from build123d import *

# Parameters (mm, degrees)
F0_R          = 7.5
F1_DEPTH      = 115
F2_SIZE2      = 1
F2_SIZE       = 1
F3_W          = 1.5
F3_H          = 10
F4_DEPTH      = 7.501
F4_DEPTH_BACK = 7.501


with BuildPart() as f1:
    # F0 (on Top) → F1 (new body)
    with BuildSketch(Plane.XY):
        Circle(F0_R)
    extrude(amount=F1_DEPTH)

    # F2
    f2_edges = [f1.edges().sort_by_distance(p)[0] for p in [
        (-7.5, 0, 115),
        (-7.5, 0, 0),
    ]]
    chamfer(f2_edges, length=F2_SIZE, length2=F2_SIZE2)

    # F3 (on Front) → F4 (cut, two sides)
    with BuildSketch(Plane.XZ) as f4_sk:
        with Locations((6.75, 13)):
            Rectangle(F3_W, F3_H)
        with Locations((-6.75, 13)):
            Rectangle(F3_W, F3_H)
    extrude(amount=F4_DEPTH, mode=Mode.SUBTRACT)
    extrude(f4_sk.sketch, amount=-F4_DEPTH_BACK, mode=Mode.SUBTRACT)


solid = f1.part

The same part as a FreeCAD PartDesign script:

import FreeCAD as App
import Part
import Sketcher


def edges_at(feature, points):
    """Names of the edges that pass closest to the given points."""
    edges = feature.Shape.Edges
    near = lambda p: min(range(len(edges)), key=lambda i: edges[i].distToShape(Part.Vertex(*p))[0])
    return sorted({f"Edge{near(p) + 1}" for p in points})


def add_polygon(sketch, points):
    """Adds a closed chain of lines whose ends are joined by coincident constraints."""
    first, n = sketch.GeometryCount, len(points)
    for a, b in zip(points, points[1:] + points[:1]):
        sketch.addGeometry(Part.LineSegment(App.Vector(*a, 0), App.Vector(*b, 0)), False)
    for i in range(n):
        sketch.addConstraint(Sketcher.Constraint("Coincident", first + i, 2, first + (i + 1) % n, 1))

doc = App.newDocument("Part")
body = doc.addObject("PartDesign::Body", "Body")

sketch1 = body.newObject("Sketcher::SketchObject", "Sketch")
sketch1.AttachmentSupport = (doc.getObject("XY_Plane"), [""])
sketch1.MapMode = "FlatFace"
sketch1.addGeometry(Part.Circle(App.Vector(0, 0, 0), App.Vector(0, 0, 1), 7.5), False)
sketch1.addConstraint(Sketcher.Constraint("Coincident", 0, 3, -1, 1))
sketch1.addConstraint(Sketcher.Constraint("Diameter", 0, 15.0))
pad1 = body.newObject("PartDesign::Pad", "Pad")
pad1.Profile = sketch1
pad1.Length = 115
doc.recompute()

chamfer = body.newObject("PartDesign::Chamfer", "Chamfer")
chamfer.Base = (pad1, edges_at(pad1, [(-7.5, 0, 115), (-7.5, 0, 0)]))
chamfer.ChamferType = "Two distances"
chamfer.Size = 1
chamfer.Size2 = 1

sketch2 = body.newObject("Sketcher::SketchObject", "Sketch001")
sketch2.AttachmentSupport = (doc.getObject("XZ_Plane"), [""])
sketch2.MapMode = "FlatFace"
add_polygon(sketch2, [(6, 18), (6, 8), (7.5, 8), (7.5, 18)])
add_polygon(sketch2, [(-7.5, 18), (-7.5, 8), (-6, 8), (-6, 18)])
sketch2.addConstraint(Sketcher.Constraint("Vertical", 0))
sketch2.addConstraint(Sketcher.Constraint("Horizontal", 1))
sketch2.addConstraint(Sketcher.Constraint("Vertical", 2))
sketch2.addConstraint(Sketcher.Constraint("Horizontal", 3))
sketch2.addConstraint(Sketcher.Constraint("Vertical", 4))
sketch2.addConstraint(Sketcher.Constraint("Horizontal", 5))
sketch2.addConstraint(Sketcher.Constraint("Vertical", 6))
sketch2.addConstraint(Sketcher.Constraint("Horizontal", 7))
sketch2.addConstraint(Sketcher.Constraint("Symmetric", 1, 2, 4, 2, -2))
sketch2.addConstraint(Sketcher.Constraint("Symmetric", 3, 2, 6, 2, -2))
sketch2.addConstraint(Sketcher.Constraint("DistanceY", 0, 2, 0, 1, 10.0))
sketch2.addConstraint(Sketcher.Constraint("DistanceX", 1, 1, 1, 2, 1.5))
sketch2.addConstraint(Sketcher.Constraint("DistanceX", -1, 1, 0, 2, 6.0))
sketch2.addConstraint(Sketcher.Constraint("DistanceY", -1, 1, 0, 2, 8.0))
pocket1 = body.newObject("PartDesign::Pocket", "Pocket")
pocket1.Profile = sketch2
pocket1.Type = "ThroughAll"
pocket1.Midplane = True

doc.recompute()
